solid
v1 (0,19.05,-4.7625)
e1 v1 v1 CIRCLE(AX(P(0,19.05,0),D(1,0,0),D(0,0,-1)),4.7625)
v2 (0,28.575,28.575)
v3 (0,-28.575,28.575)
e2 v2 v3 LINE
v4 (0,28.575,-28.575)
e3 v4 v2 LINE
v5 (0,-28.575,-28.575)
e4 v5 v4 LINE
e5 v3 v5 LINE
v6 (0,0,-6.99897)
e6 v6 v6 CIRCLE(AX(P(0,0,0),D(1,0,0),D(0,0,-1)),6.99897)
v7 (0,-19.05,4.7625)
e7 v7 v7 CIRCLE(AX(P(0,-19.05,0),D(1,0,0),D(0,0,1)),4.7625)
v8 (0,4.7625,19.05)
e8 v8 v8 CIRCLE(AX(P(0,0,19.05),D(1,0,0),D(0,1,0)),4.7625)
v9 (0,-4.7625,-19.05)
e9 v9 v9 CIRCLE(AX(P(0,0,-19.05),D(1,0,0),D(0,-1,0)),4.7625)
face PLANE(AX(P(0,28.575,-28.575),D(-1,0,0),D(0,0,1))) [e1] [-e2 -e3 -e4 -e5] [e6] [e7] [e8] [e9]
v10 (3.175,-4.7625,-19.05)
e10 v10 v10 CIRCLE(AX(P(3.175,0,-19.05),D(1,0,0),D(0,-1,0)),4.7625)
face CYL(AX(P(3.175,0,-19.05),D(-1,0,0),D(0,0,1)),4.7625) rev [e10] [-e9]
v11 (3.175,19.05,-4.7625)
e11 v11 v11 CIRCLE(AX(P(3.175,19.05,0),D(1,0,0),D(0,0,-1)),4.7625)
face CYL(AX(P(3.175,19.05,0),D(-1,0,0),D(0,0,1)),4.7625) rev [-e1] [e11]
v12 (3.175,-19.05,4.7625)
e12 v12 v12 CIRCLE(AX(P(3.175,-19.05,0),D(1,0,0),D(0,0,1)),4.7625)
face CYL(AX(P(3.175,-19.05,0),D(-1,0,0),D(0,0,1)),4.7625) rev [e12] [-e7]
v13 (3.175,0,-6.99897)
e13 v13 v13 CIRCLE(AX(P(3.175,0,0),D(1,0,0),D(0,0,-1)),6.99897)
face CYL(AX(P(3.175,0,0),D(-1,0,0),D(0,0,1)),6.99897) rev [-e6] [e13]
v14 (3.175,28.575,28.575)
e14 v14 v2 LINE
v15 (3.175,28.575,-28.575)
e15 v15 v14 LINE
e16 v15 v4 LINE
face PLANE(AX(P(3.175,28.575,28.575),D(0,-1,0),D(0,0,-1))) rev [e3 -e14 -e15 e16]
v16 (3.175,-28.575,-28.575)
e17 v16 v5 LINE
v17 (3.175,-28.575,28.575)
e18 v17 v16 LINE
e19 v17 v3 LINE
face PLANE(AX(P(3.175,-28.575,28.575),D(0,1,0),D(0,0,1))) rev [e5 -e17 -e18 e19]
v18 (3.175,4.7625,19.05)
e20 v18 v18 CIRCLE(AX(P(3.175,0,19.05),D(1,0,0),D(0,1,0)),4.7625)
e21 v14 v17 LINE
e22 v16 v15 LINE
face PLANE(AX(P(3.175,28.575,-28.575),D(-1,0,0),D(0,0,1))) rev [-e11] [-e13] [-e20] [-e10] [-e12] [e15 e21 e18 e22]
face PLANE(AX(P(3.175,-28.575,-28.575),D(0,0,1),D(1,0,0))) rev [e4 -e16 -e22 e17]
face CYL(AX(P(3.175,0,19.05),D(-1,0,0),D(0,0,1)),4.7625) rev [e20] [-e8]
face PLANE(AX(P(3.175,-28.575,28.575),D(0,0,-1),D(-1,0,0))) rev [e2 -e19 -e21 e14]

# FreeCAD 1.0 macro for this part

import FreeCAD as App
import Part
import Sketcher

V = App.Vector
Q = App.Units.Quantity


def add_polygon(sketch, points):
    """Adds a closed chain of lines whose ends are joined by coincident constraints."""
    first, n = sketch.GeometryCount, len(points)
    for a, b in zip(points, points[1:] + points[:1]):
        sketch.addGeometry(Part.LineSegment(App.Vector(*a, 0), App.Vector(*b, 0)), False)
    for i in range(n):
        sketch.addConstraint(Sketcher.Constraint("Coincident", first + i, 2, first + (i + 1) % n, 1))

doc = App.newDocument("Part")
body = doc.addObject("PartDesign::Body", "Body")

# Sketch on YZ plane
sketch1 = body.newObject("Sketcher::SketchObject", "Sketch")
sketch1.AttachmentSupport = (doc.getObject("YZ_Plane"), [""])
sketch1.MapMode = "FlatFace"
add_polygon(sketch1, [(28.575, 28.575), (-28.575, 28.575), (-28.575, -28.575), (28.575, -28.575)])  # lines 0-3
sketch1.addGeometry(Part.Circle(V(0, 0, 0), V(0, 0, 1), 6.99897), False)  # 4
sketch1.addConstraint([
    Sketcher.Constraint("Horizontal", 0),
    Sketcher.Constraint("Vertical", 1),
    Sketcher.Constraint("Horizontal", 2),
    Sketcher.Constraint("Vertical", 3),
    Sketcher.Constraint("Coincident", 4, 3, -1, 1),
    Sketcher.Constraint("Symmetric", 0, 2, 2, 2, -1, 1),
    Sketcher.Constraint("Equal", 2, 1),
    Sketcher.Constraint("Diameter", 4, Q("0.5511 in")),
    Sketcher.Constraint("DistanceX", 0, 2, 0, 1, Q("2.25 in")),
])
pad1 = body.newObject("PartDesign::Pad", "Pad")
pad1.Profile = sketch1
pad1.Length = Q("0.125 in")

# Sketch on YZ plane
sketch2 = body.newObject("Sketcher::SketchObject", "Sketch001")
sketch2.AttachmentSupport = (doc.getObject("YZ_Plane"), [""])
sketch2.MapMode = "FlatFace"
sketch2.addGeometry(Part.Circle(V(19.05, 0, 0), V(0, 0, 1), 4.7625), False)
sketch2.addConstraint([
    Sketcher.Constraint("PointOnObject", 0, 3, -1),
    Sketcher.Constraint("Diameter", 0, Q("0.375 in")),
    Sketcher.Constraint("DistanceX", -1, 1, 0, 3, Q("0.75 in")),
])
pocket1 = body.newObject("PartDesign::Pocket", "Pocket")
pocket1.Profile = sketch2
pocket1.Type = "ThroughAll"
pocket1.Reversed = True
doc.recompute()

polarpattern = body.newObject("PartDesign::PolarPattern", "PolarPattern")
polarpattern.Originals = [pocket1]
polarpattern.Axis = (doc.getObject("X_Axis"), [""])
polarpattern.Angle = 360
polarpattern.Occurrences = 4
body.Tip = polarpattern

doc.recompute()
